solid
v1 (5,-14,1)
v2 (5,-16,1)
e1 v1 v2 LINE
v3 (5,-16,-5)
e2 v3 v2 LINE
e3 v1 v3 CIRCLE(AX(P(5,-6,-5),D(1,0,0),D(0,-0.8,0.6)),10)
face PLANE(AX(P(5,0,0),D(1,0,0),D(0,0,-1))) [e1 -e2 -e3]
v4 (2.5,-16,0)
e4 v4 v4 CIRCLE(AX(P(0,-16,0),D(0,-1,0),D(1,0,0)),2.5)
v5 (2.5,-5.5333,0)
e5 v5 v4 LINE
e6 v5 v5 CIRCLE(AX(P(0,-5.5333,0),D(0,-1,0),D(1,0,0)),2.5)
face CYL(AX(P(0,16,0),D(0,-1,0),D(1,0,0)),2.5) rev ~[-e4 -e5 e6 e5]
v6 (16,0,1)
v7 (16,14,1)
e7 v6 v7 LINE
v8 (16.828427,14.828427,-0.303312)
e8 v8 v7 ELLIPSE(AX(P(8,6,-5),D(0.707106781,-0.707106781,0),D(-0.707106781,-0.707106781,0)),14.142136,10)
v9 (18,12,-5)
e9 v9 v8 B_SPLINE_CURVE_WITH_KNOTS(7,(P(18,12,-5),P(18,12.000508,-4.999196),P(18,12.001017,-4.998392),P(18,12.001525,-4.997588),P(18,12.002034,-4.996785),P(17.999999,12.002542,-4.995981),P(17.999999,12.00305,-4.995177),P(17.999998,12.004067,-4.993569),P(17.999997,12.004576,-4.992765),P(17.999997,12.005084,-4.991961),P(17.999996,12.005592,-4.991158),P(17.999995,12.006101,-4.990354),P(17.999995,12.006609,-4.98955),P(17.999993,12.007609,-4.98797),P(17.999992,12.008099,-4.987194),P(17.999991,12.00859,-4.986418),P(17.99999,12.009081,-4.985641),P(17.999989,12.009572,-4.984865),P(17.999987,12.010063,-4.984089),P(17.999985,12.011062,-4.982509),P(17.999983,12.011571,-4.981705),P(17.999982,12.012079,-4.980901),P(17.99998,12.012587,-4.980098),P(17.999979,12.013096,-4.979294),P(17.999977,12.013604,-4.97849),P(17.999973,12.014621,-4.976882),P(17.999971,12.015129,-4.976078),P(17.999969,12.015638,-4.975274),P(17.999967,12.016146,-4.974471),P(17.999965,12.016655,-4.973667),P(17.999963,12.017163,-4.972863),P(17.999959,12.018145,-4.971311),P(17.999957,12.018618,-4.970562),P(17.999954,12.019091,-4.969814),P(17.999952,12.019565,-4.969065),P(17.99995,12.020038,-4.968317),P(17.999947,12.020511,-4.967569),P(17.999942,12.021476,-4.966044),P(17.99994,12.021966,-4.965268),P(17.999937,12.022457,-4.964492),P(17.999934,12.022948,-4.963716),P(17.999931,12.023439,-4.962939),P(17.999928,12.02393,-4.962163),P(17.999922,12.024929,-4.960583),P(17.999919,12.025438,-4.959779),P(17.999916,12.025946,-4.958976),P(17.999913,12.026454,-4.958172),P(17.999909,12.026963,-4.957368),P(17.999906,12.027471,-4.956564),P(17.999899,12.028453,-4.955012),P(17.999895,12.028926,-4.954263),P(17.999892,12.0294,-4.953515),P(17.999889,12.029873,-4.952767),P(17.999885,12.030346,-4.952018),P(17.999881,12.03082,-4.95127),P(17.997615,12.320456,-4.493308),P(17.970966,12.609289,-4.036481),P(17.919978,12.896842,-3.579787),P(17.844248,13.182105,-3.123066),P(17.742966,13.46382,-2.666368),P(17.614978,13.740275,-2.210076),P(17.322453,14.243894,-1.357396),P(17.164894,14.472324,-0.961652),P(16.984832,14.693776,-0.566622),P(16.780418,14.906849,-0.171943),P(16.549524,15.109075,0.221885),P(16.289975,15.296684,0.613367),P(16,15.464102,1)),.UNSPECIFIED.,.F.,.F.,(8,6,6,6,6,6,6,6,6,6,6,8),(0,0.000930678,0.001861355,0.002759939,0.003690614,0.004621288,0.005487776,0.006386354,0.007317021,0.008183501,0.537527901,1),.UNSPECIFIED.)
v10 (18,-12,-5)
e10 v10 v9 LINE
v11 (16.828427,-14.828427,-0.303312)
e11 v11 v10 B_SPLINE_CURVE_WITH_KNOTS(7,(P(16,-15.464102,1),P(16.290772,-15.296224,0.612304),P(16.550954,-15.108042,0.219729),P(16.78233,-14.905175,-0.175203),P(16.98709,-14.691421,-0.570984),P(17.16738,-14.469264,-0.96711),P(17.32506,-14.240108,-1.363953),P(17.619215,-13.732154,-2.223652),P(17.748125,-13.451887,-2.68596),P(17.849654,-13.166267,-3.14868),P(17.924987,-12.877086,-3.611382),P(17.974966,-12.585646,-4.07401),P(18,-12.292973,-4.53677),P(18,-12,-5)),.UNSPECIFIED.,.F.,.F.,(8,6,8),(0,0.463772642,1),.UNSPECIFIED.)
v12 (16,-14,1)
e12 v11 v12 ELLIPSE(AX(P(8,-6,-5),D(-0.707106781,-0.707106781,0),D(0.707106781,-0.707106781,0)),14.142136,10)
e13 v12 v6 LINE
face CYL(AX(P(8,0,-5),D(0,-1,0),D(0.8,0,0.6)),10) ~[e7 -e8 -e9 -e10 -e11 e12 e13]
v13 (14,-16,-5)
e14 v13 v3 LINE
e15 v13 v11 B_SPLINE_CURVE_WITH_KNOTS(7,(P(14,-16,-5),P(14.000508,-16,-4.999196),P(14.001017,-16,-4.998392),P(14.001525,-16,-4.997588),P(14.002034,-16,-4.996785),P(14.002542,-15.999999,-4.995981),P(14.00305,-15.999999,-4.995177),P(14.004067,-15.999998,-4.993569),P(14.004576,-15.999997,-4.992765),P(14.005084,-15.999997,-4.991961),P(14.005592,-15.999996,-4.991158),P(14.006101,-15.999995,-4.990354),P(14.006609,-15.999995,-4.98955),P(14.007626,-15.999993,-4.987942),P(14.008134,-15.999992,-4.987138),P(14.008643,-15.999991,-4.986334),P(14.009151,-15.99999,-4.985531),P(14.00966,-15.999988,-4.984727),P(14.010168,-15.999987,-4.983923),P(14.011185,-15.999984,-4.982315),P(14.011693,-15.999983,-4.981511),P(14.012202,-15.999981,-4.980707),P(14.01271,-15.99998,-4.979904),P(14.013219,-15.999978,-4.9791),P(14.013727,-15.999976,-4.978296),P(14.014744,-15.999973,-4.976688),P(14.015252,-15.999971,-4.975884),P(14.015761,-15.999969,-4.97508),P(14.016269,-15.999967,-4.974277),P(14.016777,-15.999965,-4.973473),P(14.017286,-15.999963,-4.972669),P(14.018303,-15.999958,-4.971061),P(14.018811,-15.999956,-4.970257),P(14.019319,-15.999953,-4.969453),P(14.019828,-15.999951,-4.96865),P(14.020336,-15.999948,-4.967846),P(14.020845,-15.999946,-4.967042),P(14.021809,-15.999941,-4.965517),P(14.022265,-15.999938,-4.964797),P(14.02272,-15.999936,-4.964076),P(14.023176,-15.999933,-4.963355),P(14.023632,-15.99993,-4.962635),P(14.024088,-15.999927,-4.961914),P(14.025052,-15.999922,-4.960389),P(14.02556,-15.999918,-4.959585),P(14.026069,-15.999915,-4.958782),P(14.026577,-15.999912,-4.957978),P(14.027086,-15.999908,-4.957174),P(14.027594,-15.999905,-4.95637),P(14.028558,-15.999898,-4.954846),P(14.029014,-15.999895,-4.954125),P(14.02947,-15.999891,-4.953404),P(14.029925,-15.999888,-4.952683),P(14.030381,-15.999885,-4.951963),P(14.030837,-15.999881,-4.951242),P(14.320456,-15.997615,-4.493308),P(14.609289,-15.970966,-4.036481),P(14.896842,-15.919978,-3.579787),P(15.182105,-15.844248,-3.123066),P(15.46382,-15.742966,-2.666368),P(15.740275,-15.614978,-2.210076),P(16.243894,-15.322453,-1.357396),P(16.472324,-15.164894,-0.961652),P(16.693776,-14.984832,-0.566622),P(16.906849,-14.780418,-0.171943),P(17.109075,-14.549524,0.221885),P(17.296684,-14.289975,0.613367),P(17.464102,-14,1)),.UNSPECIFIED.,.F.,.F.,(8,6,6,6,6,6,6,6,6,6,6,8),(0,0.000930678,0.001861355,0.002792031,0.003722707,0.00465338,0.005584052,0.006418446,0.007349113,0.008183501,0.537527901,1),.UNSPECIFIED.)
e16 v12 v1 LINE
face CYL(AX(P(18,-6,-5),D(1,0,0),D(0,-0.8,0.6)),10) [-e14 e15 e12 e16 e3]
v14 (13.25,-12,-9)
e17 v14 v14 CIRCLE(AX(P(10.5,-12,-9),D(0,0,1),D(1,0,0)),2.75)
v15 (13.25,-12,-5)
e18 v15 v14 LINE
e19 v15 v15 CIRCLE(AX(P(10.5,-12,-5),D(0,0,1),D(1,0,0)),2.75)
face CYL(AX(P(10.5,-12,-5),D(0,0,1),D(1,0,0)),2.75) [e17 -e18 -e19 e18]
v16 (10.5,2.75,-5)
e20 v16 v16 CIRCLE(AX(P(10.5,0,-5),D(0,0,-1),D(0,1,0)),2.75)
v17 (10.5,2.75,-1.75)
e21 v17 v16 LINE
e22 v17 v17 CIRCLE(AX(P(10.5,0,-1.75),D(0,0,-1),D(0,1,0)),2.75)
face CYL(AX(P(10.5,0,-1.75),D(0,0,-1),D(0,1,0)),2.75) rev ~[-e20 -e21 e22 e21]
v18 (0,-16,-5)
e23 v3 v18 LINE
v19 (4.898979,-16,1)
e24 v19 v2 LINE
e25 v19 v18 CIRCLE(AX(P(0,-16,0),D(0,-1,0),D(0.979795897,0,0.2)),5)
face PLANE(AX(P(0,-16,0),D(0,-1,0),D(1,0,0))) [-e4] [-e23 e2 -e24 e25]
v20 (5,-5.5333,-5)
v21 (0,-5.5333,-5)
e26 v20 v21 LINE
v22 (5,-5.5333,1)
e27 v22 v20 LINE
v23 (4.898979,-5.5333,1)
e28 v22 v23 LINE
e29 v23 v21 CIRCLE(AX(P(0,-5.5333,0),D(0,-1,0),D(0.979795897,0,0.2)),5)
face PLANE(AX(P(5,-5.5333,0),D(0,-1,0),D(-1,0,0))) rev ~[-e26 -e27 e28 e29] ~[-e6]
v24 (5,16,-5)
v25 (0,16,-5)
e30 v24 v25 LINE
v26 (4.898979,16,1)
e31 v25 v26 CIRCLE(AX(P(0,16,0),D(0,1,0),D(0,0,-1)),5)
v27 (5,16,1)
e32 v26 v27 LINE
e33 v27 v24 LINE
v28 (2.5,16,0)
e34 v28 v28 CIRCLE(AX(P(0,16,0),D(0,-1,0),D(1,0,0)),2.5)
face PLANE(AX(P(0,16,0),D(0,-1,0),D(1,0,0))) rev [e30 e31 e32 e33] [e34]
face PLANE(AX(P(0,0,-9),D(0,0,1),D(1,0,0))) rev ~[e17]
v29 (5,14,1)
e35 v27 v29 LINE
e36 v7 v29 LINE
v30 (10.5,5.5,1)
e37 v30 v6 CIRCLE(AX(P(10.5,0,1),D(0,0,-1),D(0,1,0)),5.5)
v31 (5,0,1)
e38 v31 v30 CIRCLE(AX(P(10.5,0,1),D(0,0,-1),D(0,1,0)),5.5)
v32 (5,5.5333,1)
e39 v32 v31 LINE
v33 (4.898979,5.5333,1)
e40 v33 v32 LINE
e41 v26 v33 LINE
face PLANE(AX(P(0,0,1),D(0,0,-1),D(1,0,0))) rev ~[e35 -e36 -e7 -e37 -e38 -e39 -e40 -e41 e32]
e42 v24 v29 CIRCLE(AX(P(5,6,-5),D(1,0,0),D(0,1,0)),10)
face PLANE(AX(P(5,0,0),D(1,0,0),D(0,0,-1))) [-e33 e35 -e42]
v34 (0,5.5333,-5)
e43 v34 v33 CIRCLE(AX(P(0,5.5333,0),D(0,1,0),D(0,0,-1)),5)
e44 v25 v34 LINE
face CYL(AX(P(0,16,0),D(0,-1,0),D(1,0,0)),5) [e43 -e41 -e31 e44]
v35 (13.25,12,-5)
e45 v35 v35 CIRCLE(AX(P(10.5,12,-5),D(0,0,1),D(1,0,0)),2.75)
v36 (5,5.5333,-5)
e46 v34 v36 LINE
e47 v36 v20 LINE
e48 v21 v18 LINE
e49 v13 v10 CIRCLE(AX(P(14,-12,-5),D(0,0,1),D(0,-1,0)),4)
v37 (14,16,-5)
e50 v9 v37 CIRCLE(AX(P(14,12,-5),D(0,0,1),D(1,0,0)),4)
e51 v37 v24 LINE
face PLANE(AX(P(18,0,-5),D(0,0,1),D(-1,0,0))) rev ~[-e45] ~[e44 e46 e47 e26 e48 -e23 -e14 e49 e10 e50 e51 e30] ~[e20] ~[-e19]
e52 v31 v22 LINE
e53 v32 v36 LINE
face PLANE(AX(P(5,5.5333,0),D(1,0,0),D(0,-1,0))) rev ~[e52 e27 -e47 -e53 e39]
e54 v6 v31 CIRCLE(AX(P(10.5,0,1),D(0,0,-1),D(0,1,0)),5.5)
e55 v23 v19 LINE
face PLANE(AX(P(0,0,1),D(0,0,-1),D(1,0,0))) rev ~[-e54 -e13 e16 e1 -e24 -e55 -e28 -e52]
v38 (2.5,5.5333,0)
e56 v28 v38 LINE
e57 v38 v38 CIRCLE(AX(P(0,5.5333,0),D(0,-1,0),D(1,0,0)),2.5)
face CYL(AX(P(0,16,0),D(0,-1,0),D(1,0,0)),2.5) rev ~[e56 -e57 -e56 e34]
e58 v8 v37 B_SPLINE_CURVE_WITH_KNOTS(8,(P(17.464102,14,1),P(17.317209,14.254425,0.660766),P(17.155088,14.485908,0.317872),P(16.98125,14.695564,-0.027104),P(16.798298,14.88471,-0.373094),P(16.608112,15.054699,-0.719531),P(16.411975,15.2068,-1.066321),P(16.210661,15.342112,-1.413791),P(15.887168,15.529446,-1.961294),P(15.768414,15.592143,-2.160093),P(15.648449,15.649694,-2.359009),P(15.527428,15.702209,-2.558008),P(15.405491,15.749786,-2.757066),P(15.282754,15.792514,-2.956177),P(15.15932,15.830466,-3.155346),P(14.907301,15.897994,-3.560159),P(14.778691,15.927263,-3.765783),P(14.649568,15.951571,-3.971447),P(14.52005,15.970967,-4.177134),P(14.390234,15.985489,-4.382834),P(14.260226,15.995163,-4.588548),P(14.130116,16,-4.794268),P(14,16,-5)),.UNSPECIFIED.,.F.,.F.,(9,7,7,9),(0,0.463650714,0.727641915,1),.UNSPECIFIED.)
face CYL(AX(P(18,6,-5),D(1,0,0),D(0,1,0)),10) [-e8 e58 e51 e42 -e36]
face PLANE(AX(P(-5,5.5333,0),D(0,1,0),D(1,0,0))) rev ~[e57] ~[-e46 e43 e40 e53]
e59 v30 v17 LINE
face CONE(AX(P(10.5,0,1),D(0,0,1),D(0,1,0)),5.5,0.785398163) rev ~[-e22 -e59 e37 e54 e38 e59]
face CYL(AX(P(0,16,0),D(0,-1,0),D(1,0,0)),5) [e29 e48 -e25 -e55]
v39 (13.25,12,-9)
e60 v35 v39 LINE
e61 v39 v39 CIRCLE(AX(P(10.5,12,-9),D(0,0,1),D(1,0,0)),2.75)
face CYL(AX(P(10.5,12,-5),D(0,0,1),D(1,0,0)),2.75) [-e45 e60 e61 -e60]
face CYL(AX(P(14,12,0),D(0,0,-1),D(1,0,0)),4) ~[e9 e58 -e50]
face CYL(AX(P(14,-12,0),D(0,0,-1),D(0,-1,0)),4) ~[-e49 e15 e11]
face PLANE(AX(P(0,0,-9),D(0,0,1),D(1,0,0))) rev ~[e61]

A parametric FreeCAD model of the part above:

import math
import FreeCAD as App
import Part
import Sketcher
Q = App.Units.Quantity

doc = App.newDocument("Part")
body = doc.addObject("PartDesign::Body", "Body")

# Sketch on XY plane
sketch1 = body.newObject("Sketcher::SketchObject", "Sketch")
sketch1.AttachmentSupport = (doc.getObject("XY_Plane"), [""])
sketch1.MapMode = "FlatFace"
sketch1.addGeometry([
    Part.LineSegment(App.Vector(0, 16, 0), App.Vector(0, -16, 0)),
    Part.LineSegment(App.Vector(0, -16, 0), App.Vector(5, -16, 0)),
    Part.LineSegment(App.Vector(5, -16, 0), App.Vector(5, 16, 0)),
    Part.LineSegment(App.Vector(5, 16, 0), App.Vector(0, 16, 0)),
], False)
sketch1.addConstraint([
    Sketcher.Constraint("Coincident", 0, 2, 1, 1),
    Sketcher.Constraint("Coincident", 1, 2, 2, 1),
    Sketcher.Constraint("Coincident", 2, 2, 3, 1),
    Sketcher.Constraint("Coincident", 3, 2, 0, 1),
    Sketcher.Constraint("Vertical", 0),
    Sketcher.Constraint("Horizontal", 1),
    Sketcher.Constraint("Vertical", 2),
    Sketcher.Constraint("Horizontal", 3),
    Sketcher.Constraint("Symmetric", 0, 2, 3, 2, -1, 1),
    Sketcher.Constraint("DistanceX", 1, 1, 1, 2, 5.0),
    Sketcher.Constraint("DistanceY", 0, 2, 0, 1, 32.0),
])
revolution = body.newObject("PartDesign::Revolution", "Revolution")
revolution.Profile = sketch1
revolution.ReferenceAxis = (sketch1, ["V_Axis"])
revolution.Angle = 360

# Sketch on XZ plane
sketch2 = body.newObject("Sketcher::SketchObject", "Sketch001")
sketch2.AttachmentSupport = (doc.getObject("XZ_Plane"), [""])
sketch2.MapMode = "FlatFace"
sketch2.addGeometry([
    Part.LineSegment(App.Vector(0, -5, 0), App.Vector(0, 1, 0)),
    Part.LineSegment(App.Vector(0, 1, 0), App.Vector(16, 1, 0)),
    Part.ArcOfCircle(Part.Circle(App.Vector(8, -5, 0), App.Vector(0, 0, 1), 10), math.radians(0), math.radians(36.869898)),
    Part.LineSegment(App.Vector(18, -5, 0), App.Vector(0, -5, 0)),
], False)
sketch2.addConstraint([
    Sketcher.Constraint("Coincident", 0, 2, 1, 1),
    Sketcher.Constraint("Coincident", 1, 2, 2, 2),
    Sketcher.Constraint("Coincident", 2, 1, 3, 1),
    Sketcher.Constraint("Coincident", 3, 2, 0, 1),
    Sketcher.Constraint("Vertical", 0),
    Sketcher.Constraint("Horizontal", 1),
    Sketcher.Constraint("Horizontal", 3),
    Sketcher.Constraint("PointOnObject", 0, 2, -2),
    Sketcher.Constraint("Radius", 2, 10.0),
    Sketcher.Constraint("DistanceX", 1, 1, 1, 2, 16.0),
    Sketcher.Constraint("DistanceX", 3, 2, 3, 1, 18.0),
    Sketcher.Constraint("DistanceY", 0, 1, 0, 2, 6.0),
    Sketcher.Constraint("DistanceY", 2, 3, -1, 1, 5.0),
])
pad1 = body.newObject("PartDesign::Pad", "Pad")
pad1.Profile = sketch2
pad1.Length = 32
pad1.Midplane = True

# Sketch on YZ plane
sketch3 = body.newObject("Sketcher::SketchObject", "Sketch002")
sketch3.AttachmentSupport = (doc.getObject("YZ_Plane"), [""])
sketch3.MapMode = "FlatFace"
sketch3.AttachmentOffset = App.Placement(App.Vector(0, 0, 18), App.Rotation())
sketch3.addGeometry([
    Part.LineSegment(App.Vector(32, 5, 0), App.Vector(-32, 5, 0)),  # 0
    Part.LineSegment(App.Vector(-32, 5, 0), App.Vector(-32, -10, 0)),  # 1
    Part.LineSegment(App.Vector(-32, -10, 0), App.Vector(32, -10, 0)),  # 2
    Part.LineSegment(App.Vector(32, -10, 0), App.Vector(32, 5, 0)),  # 3
    Part.LineSegment(App.Vector(-14, 1, 0), App.Vector(14, 1, 0)),  # 4
    Part.ArcOfCircle(Part.Circle(App.Vector(6, -5, 0), App.Vector(0, 0, 1), 10), math.radians(0), math.radians(36.869898)),  # 5
    Part.LineSegment(App.Vector(16, -5, 0), App.Vector(-16, -5, 0)),  # 6
    Part.ArcOfCircle(Part.Circle(App.Vector(-6, -5, 0), App.Vector(0, 0, 1), 10), math.radians(143.130102), math.radians(180)),  # 7
], False)
sketch3.addConstraint([
    Sketcher.Constraint("Coincident", 0, 2, 1, 1),
    Sketcher.Constraint("Coincident", 1, 2, 2, 1),
    Sketcher.Constraint("Coincident", 2, 2, 3, 1),
    Sketcher.Constraint("Coincident", 3, 2, 0, 1),
    Sketcher.Constraint("Coincident", 4, 2, 5, 2),
    Sketcher.Constraint("Coincident", 5, 1, 6, 1),
    Sketcher.Constraint("Coincident", 6, 2, 7, 2),
    Sketcher.Constraint("Coincident", 7, 1, 4, 1),
    Sketcher.Constraint("Horizontal", 0),
    Sketcher.Constraint("Vertical", 1),
    Sketcher.Constraint("Horizontal", 2),
    Sketcher.Constraint("Vertical", 3),
    Sketcher.Constraint("Horizontal", 4),
    Sketcher.Constraint("Horizontal", 6),
    Sketcher.Constraint("Equal", 5, 7),
    Sketcher.Constraint("Symmetric", 5, 3, 7, 3, -2),
    Sketcher.Constraint("Horizontal", 7, 3, 5, 1),
    Sketcher.Constraint("Radius", 5, 10.0),
    Sketcher.Constraint("DistanceX", 0, 2, 0, 1, 64.0),
    Sketcher.Constraint("DistanceX", 4, 1, 4, 2, 28.0),
    Sketcher.Constraint("DistanceX", 6, 2, 6, 1, 32.0),
    Sketcher.Constraint("DistanceY", 1, 2, 1, 1, 15.0),
    Sketcher.Constraint("DistanceY", 5, 3, -1, 1, 5.0),
    Sketcher.Constraint("DistanceX", 0, 2, -1, 1, 32.0),
    Sketcher.Constraint("DistanceY", -1, 1, 0, 2, 5.0),
])
pocket1 = body.newObject("PartDesign::Pocket", "Pocket")
pocket1.Profile = sketch3
pocket1.Length = 13

# Sketch on XY plane
sketch4 = body.newObject("Sketcher::SketchObject", "Sketch003")
sketch4.AttachmentSupport = (doc.getObject("XY_Plane"), [""])
sketch4.MapMode = "FlatFace"
sketch4.AttachmentOffset = App.Placement(App.Vector(0, 0, -5), App.Rotation())
sketch4.addGeometry(Part.Circle(App.Vector(10.5, 12, 0), App.Vector(0, 0, 1), 2.75), False)
sketch4.addConstraint([
    Sketcher.Constraint("Diameter", 0, 5.5),
    Sketcher.Constraint("DistanceY", -1, 1, 0, 3, 12.0),
    Sketcher.Constraint("DistanceX", -1, 1, 0, 3, 10.5),
])
pad2 = body.newObject("PartDesign::Pad", "Pad001")
pad2.Profile = sketch4
pad2.Length = 4
pad2.Reversed = True

# Sketch on XY plane
sketch5 = body.newObject("Sketcher::SketchObject", "Sketch004")
sketch5.AttachmentSupport = (doc.getObject("XY_Plane"), [""])
sketch5.MapMode = "FlatFace"
sketch5.AttachmentOffset = App.Placement(App.Vector(0, 0, -5), App.Rotation())
sketch5.addGeometry(Part.Circle(App.Vector(10.5, -12, 0), App.Vector(0, 0, 1), 2.75), False)
sketch5.addConstraint([
    Sketcher.Constraint("Diameter", 0, 5.5),
    Sketcher.Constraint("DistanceY", 0, 3, -1, 1, 12.0),
    Sketcher.Constraint("DistanceX", -1, 1, 0, 3, 10.5),
])
pad3 = body.newObject("PartDesign::Pad", "Pad002")
pad3.Profile = sketch5
pad3.Length = 4
pad3.Reversed = True

# Sketch on YZ plane
sketch6 = body.newObject("Sketcher::SketchObject", "Sketch005")
sketch6.AttachmentSupport = (doc.getObject("YZ_Plane"), [""])
sketch6.MapMode = "FlatFace"
sketch6.AttachmentOffset = App.Placement(App.Vector(0, 0, 10.5), App.Rotation())
sketch6.addGeometry([
    Part.LineSegment(App.Vector(0, 1, 0), App.Vector(0, -5, 0)),  # 0
    Part.LineSegment(App.Vector(0, -5, 0), App.Vector(2.75, -5, 0)),  # 1
    Part.LineSegment(App.Vector(2.75, -5, 0), App.Vector(2.75, -1.75, 0)),  # 2
    Part.LineSegment(App.Vector(2.75, -1.75, 0), App.Vector(5.5, 1, 0)),  # 3
    Part.LineSegment(App.Vector(5.5, 1, 0), App.Vector(0, 1, 0)),  # 4
], False)
sketch6.addConstraint([
    Sketcher.Constraint("Coincident", 0, 2, 1, 1),
    Sketcher.Constraint("Coincident", 1, 2, 2, 1),
    Sketcher.Constraint("Coincident", 2, 2, 3, 1),
    Sketcher.Constraint("Coincident", 3, 2, 4, 1),
    Sketcher.Constraint("Coincident", 4, 2, 0, 1),
    Sketcher.Constraint("Vertical", 0),
    Sketcher.Constraint("Horizontal", 1),
    Sketcher.Constraint("Vertical", 2),
    Sketcher.Constraint("Horizontal", 4),
    Sketcher.Constraint("PointOnObject", 0, 2, -2),
    Sketcher.Constraint("DistanceY", 0, 2, 0, 1, 6.0),
    Sketcher.Constraint("Angle", 3, Q("45 deg")),
    Sketcher.Constraint("DistanceX", 4, 2, 4, 1, 5.5),
    Sketcher.Constraint("DistanceY", 0, 2, -1, 1, 5.0),
    Sketcher.Constraint("DistanceX", 1, 1, 1, 2, 2.75),
])
groove = body.newObject("PartDesign::Groove", "Groove")
groove.Profile = sketch6
groove.ReferenceAxis = (sketch6, ["V_Axis"])
groove.Angle = 360

# Sketch on XY plane
sketch7 = body.newObject("Sketcher::SketchObject", "Sketch006")
sketch7.AttachmentSupport = (doc.getObject("XY_Plane"), [""])
sketch7.MapMode = "FlatFace"
sketch7.addGeometry([
    Part.LineSegment(App.Vector(0, 16, 0), App.Vector(0, -16, 0)),
    Part.LineSegment(App.Vector(0, -16, 0), App.Vector(2.5, -16, 0)),
    Part.LineSegment(App.Vector(2.5, -16, 0), App.Vector(2.5, 16, 0)),
    Part.LineSegment(App.Vector(2.5, 16, 0), App.Vector(0, 16, 0)),
], False)
sketch7.addConstraint([
    Sketcher.Constraint("Coincident", 0, 2, 1, 1),
    Sketcher.Constraint("Coincident", 1, 2, 2, 1),
    Sketcher.Constraint("Coincident", 2, 2, 3, 1),
    Sketcher.Constraint("Coincident", 3, 2, 0, 1),
    Sketcher.Constraint("Vertical", 0),
    Sketcher.Constraint("Horizontal", 1),
    Sketcher.Constraint("Vertical", 2),
    Sketcher.Constraint("Horizontal", 3),
    Sketcher.Constraint("Symmetric", 0, 2, 3, 2, -1, 1),
    Sketcher.Constraint("DistanceY", 0, 2, 0, 1, 32.0),
    Sketcher.Constraint("DistanceX", 1, 1, 1, 2, 2.5),
])
groove2 = body.newObject("PartDesign::Groove", "Groove001")
groove2.Profile = sketch7
groove2.ReferenceAxis = (sketch7, ["V_Axis"])
groove2.Angle = 360

# Sketch on XY plane
sketch8 = body.newObject("Sketcher::SketchObject", "Sketch007")
sketch8.AttachmentSupport = (doc.getObject("XY_Plane"), [""])
sketch8.MapMode = "FlatFace"
sketch8.addGeometry([
    Part.LineSegment(App.Vector(-36, 36, 0), App.Vector(-36, -36, 0)),  # 0
    Part.LineSegment(App.Vector(-36, -36, 0), App.Vector(36, -36, 0)),  # 1
    Part.LineSegment(App.Vector(36, -36, 0), App.Vector(36, 36, 0)),  # 2
    Part.LineSegment(App.Vector(36, 36, 0), App.Vector(-36, 36, 0)),  # 3
    Part.LineSegment(App.Vector(14, -16, 0), App.Vector(-5, -16, 0)),  # 4
    Part.LineSegment(App.Vector(-5, -16, 0), App.Vector(-5, -5.5333, 0)),  # 5
    Part.LineSegment(App.Vector(-5, -5.5333, 0), App.Vector(5, -5.5333, 0)),  # 6
    Part.LineSegment(App.Vector(5, -5.5333, 0), App.Vector(5, 5.5333, 0)),  # 7
    Part.LineSegment(App.Vector(5, 5.5333, 0), App.Vector(-5, 5.5333, 0)),  # 8
    Part.LineSegment(App.Vector(-5, 5.5333, 0), App.Vector(-5, 16, 0)),  # 9
    Part.LineSegment(App.Vector(-5, 16, 0), App.Vector(14, 16, 0)),  # 10
    Part.ArcOfCircle(Part.Circle(App.Vector(14, 12, 0), App.Vector(0, 0, 1), 4), math.radians(0), math.radians(90)),  # 11
    Part.LineSegment(App.Vector(18, 12, 0), App.Vector(18, -12, 0)),  # 12
    Part.ArcOfCircle(Part.Circle(App.Vector(14, -12, 0), App.Vector(0, 0, 1), 4), math.radians(-90), math.radians(0)),  # 13
], False)
sketch8.addConstraint([
    Sketcher.Constraint("Coincident", 0, 2, 1, 1),
    Sketcher.Constraint("Coincident", 1, 2, 2, 1),
    Sketcher.Constraint("Coincident", 2, 2, 3, 1),
    Sketcher.Constraint("Coincident", 3, 2, 0, 1),
    Sketcher.Constraint("Coincident", 4, 2, 5, 1),
    Sketcher.Constraint("Coincident", 5, 2, 6, 1),
    Sketcher.Constraint("Coincident", 6, 2, 7, 1),
    Sketcher.Constraint("Coincident", 7, 2, 8, 1),
    Sketcher.Constraint("Coincident", 8, 2, 9, 1),
    Sketcher.Constraint("Coincident", 9, 2, 10, 1),
    Sketcher.Constraint("Tangent", 10, 2, 11, 2),
    Sketcher.Constraint("Tangent", 11, 1, 12, 1),
    Sketcher.Constraint("Tangent", 12, 2, 13, 2),
    Sketcher.Constraint("Tangent", 13, 1, 4, 1),
    Sketcher.Constraint("Vertical", 0),
    Sketcher.Constraint("Horizontal", 1),
    Sketcher.Constraint("Vertical", 2),
    Sketcher.Constraint("Horizontal", 3),
    Sketcher.Constraint("Horizontal", 4),
    Sketcher.Constraint("Vertical", 5),
    Sketcher.Constraint("Horizontal", 6),
    Sketcher.Constraint("Vertical", 7),
    Sketcher.Constraint("Horizontal", 8),
    Sketcher.Constraint("Vertical", 9),
    Sketcher.Constraint("Horizontal", 10),
    Sketcher.Constraint("Vertical", 12),
    Sketcher.Constraint("Equal", 11, 13),
    Sketcher.Constraint("Symmetric", 0, 2, 2, 2, -1, 1),
    Sketcher.Constraint("Symmetric", 5, 2, 7, 2, -1, 1),
    Sketcher.Constraint("Symmetric", 4, 2, 9, 2, -1),
    Sketcher.Constraint("Equal", 3, 0),
    Sketcher.Constraint("Radius", 11, 4.0),
    Sketcher.Constraint("DistanceX", 1, 1, 1, 2, 72.0),
    Sketcher.Constraint("DistanceX", 4, 2, 4, 1, 19.0),
    Sketcher.Constraint("DistanceX", 6, 1, 6, 2, 10.0),
    Sketcher.Constraint("DistanceY", 12, 2, 12, 1, 24.0),
    Sketcher.Constraint("DistanceY", 5, 1, 5, 2, 10.4667),
])
pocket2 = body.newObject("PartDesign::Pocket", "Pocket001")
pocket2.Profile = sketch8
pocket2.Length = 10
pocket2.Midplane = True

doc.recompute()
